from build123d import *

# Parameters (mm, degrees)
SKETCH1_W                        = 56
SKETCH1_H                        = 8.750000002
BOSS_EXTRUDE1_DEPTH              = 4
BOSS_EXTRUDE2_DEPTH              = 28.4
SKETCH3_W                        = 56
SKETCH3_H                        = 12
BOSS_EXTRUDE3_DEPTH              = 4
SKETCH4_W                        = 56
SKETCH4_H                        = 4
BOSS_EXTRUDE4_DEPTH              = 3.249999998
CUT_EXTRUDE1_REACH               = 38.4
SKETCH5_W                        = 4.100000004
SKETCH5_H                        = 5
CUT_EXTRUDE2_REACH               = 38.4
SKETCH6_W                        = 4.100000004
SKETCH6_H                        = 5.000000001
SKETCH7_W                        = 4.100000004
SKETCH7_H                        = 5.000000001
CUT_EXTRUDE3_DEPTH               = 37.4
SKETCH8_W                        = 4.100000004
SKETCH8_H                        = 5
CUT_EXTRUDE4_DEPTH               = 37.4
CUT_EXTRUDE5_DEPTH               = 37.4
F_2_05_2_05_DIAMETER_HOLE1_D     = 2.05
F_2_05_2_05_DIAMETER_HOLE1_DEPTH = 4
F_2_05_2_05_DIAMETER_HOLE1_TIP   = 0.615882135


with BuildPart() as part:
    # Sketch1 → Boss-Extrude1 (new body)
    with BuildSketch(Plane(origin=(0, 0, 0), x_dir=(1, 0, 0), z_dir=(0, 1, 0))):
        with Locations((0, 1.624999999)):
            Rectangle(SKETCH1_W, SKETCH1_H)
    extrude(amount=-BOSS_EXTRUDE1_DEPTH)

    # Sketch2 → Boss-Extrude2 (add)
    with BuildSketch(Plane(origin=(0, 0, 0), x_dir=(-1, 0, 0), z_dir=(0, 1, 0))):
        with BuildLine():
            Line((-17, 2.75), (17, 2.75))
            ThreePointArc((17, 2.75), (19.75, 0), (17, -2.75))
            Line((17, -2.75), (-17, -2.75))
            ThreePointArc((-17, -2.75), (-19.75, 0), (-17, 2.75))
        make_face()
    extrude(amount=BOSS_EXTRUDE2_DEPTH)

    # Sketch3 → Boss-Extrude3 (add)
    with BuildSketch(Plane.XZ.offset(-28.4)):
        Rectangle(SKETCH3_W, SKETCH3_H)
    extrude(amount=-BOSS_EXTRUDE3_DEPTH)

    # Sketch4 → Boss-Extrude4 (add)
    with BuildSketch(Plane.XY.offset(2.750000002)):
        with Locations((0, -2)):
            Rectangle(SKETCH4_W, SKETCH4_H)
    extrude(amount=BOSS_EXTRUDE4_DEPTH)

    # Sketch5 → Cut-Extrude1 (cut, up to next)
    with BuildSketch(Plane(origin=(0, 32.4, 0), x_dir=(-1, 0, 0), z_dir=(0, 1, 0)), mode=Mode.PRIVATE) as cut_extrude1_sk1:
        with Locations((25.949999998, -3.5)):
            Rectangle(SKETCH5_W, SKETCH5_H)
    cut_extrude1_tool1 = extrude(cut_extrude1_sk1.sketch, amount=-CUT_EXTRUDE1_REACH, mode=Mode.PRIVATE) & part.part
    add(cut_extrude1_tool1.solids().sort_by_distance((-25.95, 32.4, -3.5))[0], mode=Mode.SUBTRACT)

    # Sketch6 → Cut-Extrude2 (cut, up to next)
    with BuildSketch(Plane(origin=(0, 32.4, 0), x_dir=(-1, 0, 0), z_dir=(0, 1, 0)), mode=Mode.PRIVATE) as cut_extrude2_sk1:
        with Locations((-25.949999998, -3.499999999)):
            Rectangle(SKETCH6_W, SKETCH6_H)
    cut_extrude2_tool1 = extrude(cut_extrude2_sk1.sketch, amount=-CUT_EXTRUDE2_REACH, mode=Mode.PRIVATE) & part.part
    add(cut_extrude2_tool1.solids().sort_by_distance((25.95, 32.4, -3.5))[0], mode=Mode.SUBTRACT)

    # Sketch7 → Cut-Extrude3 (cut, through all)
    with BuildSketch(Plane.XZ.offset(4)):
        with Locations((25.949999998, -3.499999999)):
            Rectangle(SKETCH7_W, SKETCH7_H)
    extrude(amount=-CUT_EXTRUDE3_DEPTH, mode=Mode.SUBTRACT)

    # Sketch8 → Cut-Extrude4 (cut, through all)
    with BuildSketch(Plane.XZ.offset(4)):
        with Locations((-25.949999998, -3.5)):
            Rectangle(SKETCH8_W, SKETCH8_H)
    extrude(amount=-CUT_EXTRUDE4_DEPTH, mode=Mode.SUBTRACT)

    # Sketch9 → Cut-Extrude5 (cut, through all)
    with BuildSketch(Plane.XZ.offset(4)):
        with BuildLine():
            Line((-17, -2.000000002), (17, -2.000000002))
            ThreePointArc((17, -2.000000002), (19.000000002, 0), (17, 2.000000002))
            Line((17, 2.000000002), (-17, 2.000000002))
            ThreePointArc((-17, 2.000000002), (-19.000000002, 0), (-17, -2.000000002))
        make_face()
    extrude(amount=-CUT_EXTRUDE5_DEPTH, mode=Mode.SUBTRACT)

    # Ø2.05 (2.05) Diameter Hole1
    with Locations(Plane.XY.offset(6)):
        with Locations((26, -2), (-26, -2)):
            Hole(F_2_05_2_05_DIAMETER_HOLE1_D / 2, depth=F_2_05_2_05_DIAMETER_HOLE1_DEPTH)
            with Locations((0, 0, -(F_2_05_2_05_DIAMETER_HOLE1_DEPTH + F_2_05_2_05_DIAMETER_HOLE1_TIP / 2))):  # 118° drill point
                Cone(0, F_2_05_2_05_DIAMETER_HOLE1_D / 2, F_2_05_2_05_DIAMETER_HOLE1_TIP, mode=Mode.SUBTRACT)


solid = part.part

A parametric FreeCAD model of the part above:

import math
import FreeCAD as App
import Part
import Sketcher

V = App.Vector
Q = App.Units.Quantity


def add_polygon(sketch, points):
    """Adds a closed chain of lines whose ends are joined by coincident constraints."""
    first, n = sketch.GeometryCount, len(points)
    for a, b in zip(points, points[1:] + points[:1]):
        sketch.addGeometry(Part.LineSegment(App.Vector(*a, 0), App.Vector(*b, 0)), False)
    for i in range(n):
        sketch.addConstraint(Sketcher.Constraint("Coincident", first + i, 2, first + (i + 1) % n, 1))

doc = App.newDocument("Part")
body = doc.addObject("PartDesign::Body", "Body")

# Sketch on XZ plane
sketch1 = body.newObject("Sketcher::SketchObject", "Sketch")
sketch1.AttachmentSupport = (doc.getObject("XZ_Plane"), [""])
sketch1.MapMode = "FlatFace"
add_polygon(sketch1, [(-28, -6), (-28, 2.75), (28, 2.75), (28, -6)])  # lines 0-3
sketch1.addConstraint([
    Sketcher.Constraint("Vertical", 0),
    Sketcher.Constraint("Horizontal", 1),
    Sketcher.Constraint("Vertical", 2),
    Sketcher.Constraint("Horizontal", 3),
    Sketcher.Constraint("DistanceX", 1, 1, 1, 2, Q("56 mm")),
    Sketcher.Constraint("DistanceX", 0, 2, -1, 1, Q("28 mm")),
    Sketcher.Constraint("DistanceY", 2, 2, -1, 1, Q("6 mm")),
    Sketcher.Constraint("DistanceY", 0, 1, 0, 2, Q("8.75 mm")),
])
pad1 = body.newObject("PartDesign::Pad", "Pad")
pad1.Profile = sketch1
pad1.Length = 4

# Sketch on XZ plane
sketch2 = body.newObject("Sketcher::SketchObject", "Sketch001")
sketch2.AttachmentSupport = (doc.getObject("XZ_Plane"), [""])
sketch2.MapMode = "FlatFace"
sketch2.addGeometry([
    Part.LineSegment(V(-17, 2.75, 0), V(17, 2.75, 0)),
    Part.ArcOfCircle(Part.Circle(V(17, 0, 0), V(0, 0, 1), 2.75), math.radians(-90), math.radians(90)),
    Part.LineSegment(V(17, -2.75, 0), V(-17, -2.75, 0)),
    Part.ArcOfCircle(Part.Circle(V(-17, 0, 0), V(0, 0, 1), 2.75), math.radians(90), math.radians(270)),
], False)
sketch2.addConstraint([
    Sketcher.Constraint("Tangent", 0, 2, 1, 2),
    Sketcher.Constraint("Tangent", 1, 1, 2, 1),
    Sketcher.Constraint("Tangent", 2, 2, 3, 2),
    Sketcher.Constraint("Tangent", 3, 1, 0, 1),
    Sketcher.Constraint("Horizontal", 0),
    Sketcher.Constraint("Horizontal", 2),
    Sketcher.Constraint("Symmetric", 1, 3, 3, 3, -1, 1),
    Sketcher.Constraint("DistanceX", 0, 1, 0, 2, Q("34 mm")),
    Sketcher.Constraint("Radius", 1, Q("2.75 mm")),
])
pad2 = body.newObject("PartDesign::Pad", "Pad001")
pad2.Profile = sketch2
pad2.Length = 28.4
pad2.Reversed = True

# Sketch on XZ plane
sketch3 = body.newObject("Sketcher::SketchObject", "Sketch002")
sketch3.AttachmentSupport = (doc.getObject("XZ_Plane"), [""])
sketch3.MapMode = "FlatFace"
sketch3.AttachmentOffset = App.Placement(V(0, 0, -28.4), App.Rotation())
add_polygon(sketch3, [(-28, 6), (-28, -6), (28, -6), (28, 6)])  # lines 0-3
sketch3.addConstraint([
    Sketcher.Constraint("Vertical", 0),
    Sketcher.Constraint("Horizontal", 1),
    Sketcher.Constraint("Vertical", 2),
    Sketcher.Constraint("Horizontal", 3),
    Sketcher.Constraint("Symmetric", 0, 2, 2, 2, -1, 1),
    Sketcher.Constraint("DistanceX", 1, 1, 1, 2, Q("56 mm")),
    Sketcher.Constraint("DistanceY", 0, 2, 0, 1, Q("12 mm")),
])
pad3 = body.newObject("PartDesign::Pad", "Pad002")
pad3.Profile = sketch3
pad3.Length = 4
pad3.Reversed = True

# Sketch on XY plane
sketch4 = body.newObject("Sketcher::SketchObject", "Sketch003")
sketch4.AttachmentSupport = (doc.getObject("XY_Plane"), [""])
sketch4.MapMode = "FlatFace"
sketch4.AttachmentOffset = App.Placement(V(0, 0, 2.75), App.Rotation())
add_polygon(sketch4, [(-28, 0), (-28, -4), (28, -4), (28, 0)])  # lines 0-3
sketch4.addConstraint([
    Sketcher.Constraint("Vertical", 0),
    Sketcher.Constraint("Horizontal", 1),
    Sketcher.Constraint("Vertical", 2),
    Sketcher.Constraint("Horizontal", 3),
    Sketcher.Constraint("Symmetric", 2, 2, 3, 2, -1, 1),
    Sketcher.Constraint("DistanceX", 1, 1, 1, 2, Q("56 mm")),
    Sketcher.Constraint("DistanceY", 0, 2, 0, 1, Q("4 mm")),
])
pad4 = body.newObject("PartDesign::Pad", "Pad003")
pad4.Profile = sketch4
pad4.Length = 3.25

# Sketch on XZ plane
sketch5 = body.newObject("Sketcher::SketchObject", "Sketch004")
sketch5.AttachmentSupport = (doc.getObject("XZ_Plane"), [""])
sketch5.MapMode = "FlatFace"
sketch5.AttachmentOffset = App.Placement(V(0, 0, -32.4), App.Rotation())
add_polygon(sketch5, [(-23.9, -1), (-23.9, -6), (-28, -6), (-28, -1)])  # lines 0-3
sketch5.addConstraint([
    Sketcher.Constraint("Vertical", 0),
    Sketcher.Constraint("Horizontal", 1),
    Sketcher.Constraint("Vertical", 2),
    Sketcher.Constraint("Horizontal", 3),
    Sketcher.Constraint("DistanceY", 0, 2, 0, 1, Q("5 mm")),
    Sketcher.Constraint("DistanceX", 1, 2, 1, 1, Q("4.1 mm")),
    Sketcher.Constraint("DistanceY", 0, 2, -1, 1, Q("6 mm")),
    Sketcher.Constraint("DistanceX", 1, 2, -1, 1, Q("28 mm")),
])
pocket1 = body.newObject("PartDesign::Pocket", "Pocket")
pocket1.Profile = sketch5
pocket1.Type = "UpToFirst"
pocket1.Reversed = True

# Sketch on XZ plane
sketch6 = body.newObject("Sketcher::SketchObject", "Sketch005")
sketch6.AttachmentSupport = (doc.getObject("XZ_Plane"), [""])
sketch6.MapMode = "FlatFace"
sketch6.AttachmentOffset = App.Placement(V(0, 0, -32.4), App.Rotation())
add_polygon(sketch6, [(28, -1), (28, -6), (23.9, -6), (23.9, -1)])  # lines 0-3
sketch6.addConstraint([
    Sketcher.Constraint("Vertical", 0),
    Sketcher.Constraint("Horizontal", 1),
    Sketcher.Constraint("Vertical", 2),
    Sketcher.Constraint("Horizontal", 3),
    Sketcher.Constraint("DistanceY", 0, 2, 0, 1, Q("5 mm")),
    Sketcher.Constraint("DistanceX", 1, 2, 1, 1, Q("4.1 mm")),
    Sketcher.Constraint("DistanceX", -1, 1, 0, 2, Q("28 mm")),
    Sketcher.Constraint("DistanceY", 0, 2, -1, 1, Q("6 mm")),
])
pocket2 = body.newObject("PartDesign::Pocket", "Pocket001")
pocket2.Profile = sketch6
pocket2.Type = "UpToFirst"
pocket2.Reversed = True

# Sketch on XZ plane
sketch7 = body.newObject("Sketcher::SketchObject", "Sketch006")
sketch7.AttachmentSupport = (doc.getObject("XZ_Plane"), [""])
sketch7.MapMode = "FlatFace"
sketch7.AttachmentOffset = App.Placement(V(0, 0, 4), App.Rotation())
add_polygon(sketch7, [(23.9, -1), (23.9, -6), (28, -6), (28, -1)])  # lines 0-3
sketch7.addConstraint([
    Sketcher.Constraint("Vertical", 0),
    Sketcher.Constraint("Horizontal", 1),
    Sketcher.Constraint("Vertical", 2),
    Sketcher.Constraint("Horizontal", 3),
    Sketcher.Constraint("DistanceY", 0, 2, 0, 1, Q("5 mm")),
    Sketcher.Constraint("DistanceX", 1, 1, 1, 2, Q("4.1 mm")),
    Sketcher.Constraint("DistanceY", 0, 2, -1, 1, Q("6 mm")),
    Sketcher.Constraint("DistanceX", -1, 1, 1, 2, Q("28 mm")),
])
pocket3 = body.newObject("PartDesign::Pocket", "Pocket002")
pocket3.Profile = sketch7
pocket3.Type = "ThroughAll"

# Sketch on XZ plane
sketch8 = body.newObject("Sketcher::SketchObject", "Sketch007")
sketch8.AttachmentSupport = (doc.getObject("XZ_Plane"), [""])
sketch8.MapMode = "FlatFace"
sketch8.AttachmentOffset = App.Placement(V(0, 0, 4), App.Rotation())
add_polygon(sketch8, [(-28, -1), (-28, -6), (-23.9, -6), (-23.9, -1)])  # lines 0-3
sketch8.addConstraint([
    Sketcher.Constraint("Vertical", 0),
    Sketcher.Constraint("Horizontal", 1),
    Sketcher.Constraint("Vertical", 2),
    Sketcher.Constraint("Horizontal", 3),
    Sketcher.Constraint("DistanceY", 0, 2, 0, 1, Q("5 mm")),
    Sketcher.Constraint("DistanceX", 1, 1, 1, 2, Q("4.1 mm")),
    Sketcher.Constraint("DistanceX", 0, 2, -1, 1, Q("28 mm")),
    Sketcher.Constraint("DistanceY", 0, 2, -1, 1, Q("6 mm")),
])
pocket4 = body.newObject("PartDesign::Pocket", "Pocket003")
pocket4.Profile = sketch8
pocket4.Type = "ThroughAll"

# Sketch on XZ plane
sketch9 = body.newObject("Sketcher::SketchObject", "Sketch008")
sketch9.AttachmentSupport = (doc.getObject("XZ_Plane"), [""])
sketch9.MapMode = "FlatFace"
sketch9.AttachmentOffset = App.Placement(V(0, 0, 4), App.Rotation())
sketch9.addGeometry([
    Part.LineSegment(V(-17, -2, 0), V(17, -2, 0)),
    Part.ArcOfCircle(Part.Circle(V(17, 0, 0), V(0, 0, 1), 2), math.radians(-90), math.radians(90)),
    Part.LineSegment(V(17, 2, 0), V(-17, 2, 0)),
    Part.ArcOfCircle(Part.Circle(V(-17, 0, 0), V(0, 0, 1), 2), math.radians(90), math.radians(270)),
], False)
sketch9.addConstraint([
    Sketcher.Constraint("Tangent", 0, 2, 1, 1),
    Sketcher.Constraint("Tangent", 1, 2, 2, 1),
    Sketcher.Constraint("Tangent", 2, 2, 3, 1),
    Sketcher.Constraint("Tangent", 3, 2, 0, 1),
    Sketcher.Constraint("Horizontal", 0),
    Sketcher.Constraint("Horizontal", 2),
    Sketcher.Constraint("Symmetric", 1, 3, 3, 3, -1, 1),
    Sketcher.Constraint("Radius", 1, Q("2 mm")),
    Sketcher.Constraint("DistanceX", 0, 1, 0, 2, Q("34 mm")),
])
pocket5 = body.newObject("PartDesign::Pocket", "Pocket004")
pocket5.Profile = sketch9
pocket5.Type = "ThroughAll"

# Sketch on XY plane
sketch10 = body.newObject("Sketcher::SketchObject", "Sketch009")
sketch10.AttachmentSupport = (doc.getObject("XY_Plane"), [""])
sketch10.MapMode = "FlatFace"
sketch10.AttachmentOffset = App.Placement(V(0, 0, 6), App.Rotation())
sketch10.addGeometry([
    Part.Circle(V(26, -2, 0), V(0, 0, 1), 1.025),
    Part.Circle(V(-26, -2, 0), V(0, 0, 1), 1.025),
], False)
sketch10.addConstraint([
    Sketcher.Constraint("Equal", 0, 1),
    Sketcher.Constraint("Symmetric", 0, 3, 1, 3, -2),
    Sketcher.Constraint("Diameter", 0, Q("2.05 mm")),
    Sketcher.Constraint("DistanceX", -1, 1, 0, 3, Q("26 mm")),
    Sketcher.Constraint("DistanceY", 0, 3, -1, 1, Q("2 mm")),
])
doc.recompute()
hole = body.newObject("PartDesign::Hole", "Hole")
hole.Profile = sketch10
hole.ThreadType = "None"
hole.Diameter = 2.05
hole.DepthType = "Dimension"
hole.Depth = 4
hole.DrillPoint = "Angled"
hole.DrillPointAngle = 118

doc.recompute()
